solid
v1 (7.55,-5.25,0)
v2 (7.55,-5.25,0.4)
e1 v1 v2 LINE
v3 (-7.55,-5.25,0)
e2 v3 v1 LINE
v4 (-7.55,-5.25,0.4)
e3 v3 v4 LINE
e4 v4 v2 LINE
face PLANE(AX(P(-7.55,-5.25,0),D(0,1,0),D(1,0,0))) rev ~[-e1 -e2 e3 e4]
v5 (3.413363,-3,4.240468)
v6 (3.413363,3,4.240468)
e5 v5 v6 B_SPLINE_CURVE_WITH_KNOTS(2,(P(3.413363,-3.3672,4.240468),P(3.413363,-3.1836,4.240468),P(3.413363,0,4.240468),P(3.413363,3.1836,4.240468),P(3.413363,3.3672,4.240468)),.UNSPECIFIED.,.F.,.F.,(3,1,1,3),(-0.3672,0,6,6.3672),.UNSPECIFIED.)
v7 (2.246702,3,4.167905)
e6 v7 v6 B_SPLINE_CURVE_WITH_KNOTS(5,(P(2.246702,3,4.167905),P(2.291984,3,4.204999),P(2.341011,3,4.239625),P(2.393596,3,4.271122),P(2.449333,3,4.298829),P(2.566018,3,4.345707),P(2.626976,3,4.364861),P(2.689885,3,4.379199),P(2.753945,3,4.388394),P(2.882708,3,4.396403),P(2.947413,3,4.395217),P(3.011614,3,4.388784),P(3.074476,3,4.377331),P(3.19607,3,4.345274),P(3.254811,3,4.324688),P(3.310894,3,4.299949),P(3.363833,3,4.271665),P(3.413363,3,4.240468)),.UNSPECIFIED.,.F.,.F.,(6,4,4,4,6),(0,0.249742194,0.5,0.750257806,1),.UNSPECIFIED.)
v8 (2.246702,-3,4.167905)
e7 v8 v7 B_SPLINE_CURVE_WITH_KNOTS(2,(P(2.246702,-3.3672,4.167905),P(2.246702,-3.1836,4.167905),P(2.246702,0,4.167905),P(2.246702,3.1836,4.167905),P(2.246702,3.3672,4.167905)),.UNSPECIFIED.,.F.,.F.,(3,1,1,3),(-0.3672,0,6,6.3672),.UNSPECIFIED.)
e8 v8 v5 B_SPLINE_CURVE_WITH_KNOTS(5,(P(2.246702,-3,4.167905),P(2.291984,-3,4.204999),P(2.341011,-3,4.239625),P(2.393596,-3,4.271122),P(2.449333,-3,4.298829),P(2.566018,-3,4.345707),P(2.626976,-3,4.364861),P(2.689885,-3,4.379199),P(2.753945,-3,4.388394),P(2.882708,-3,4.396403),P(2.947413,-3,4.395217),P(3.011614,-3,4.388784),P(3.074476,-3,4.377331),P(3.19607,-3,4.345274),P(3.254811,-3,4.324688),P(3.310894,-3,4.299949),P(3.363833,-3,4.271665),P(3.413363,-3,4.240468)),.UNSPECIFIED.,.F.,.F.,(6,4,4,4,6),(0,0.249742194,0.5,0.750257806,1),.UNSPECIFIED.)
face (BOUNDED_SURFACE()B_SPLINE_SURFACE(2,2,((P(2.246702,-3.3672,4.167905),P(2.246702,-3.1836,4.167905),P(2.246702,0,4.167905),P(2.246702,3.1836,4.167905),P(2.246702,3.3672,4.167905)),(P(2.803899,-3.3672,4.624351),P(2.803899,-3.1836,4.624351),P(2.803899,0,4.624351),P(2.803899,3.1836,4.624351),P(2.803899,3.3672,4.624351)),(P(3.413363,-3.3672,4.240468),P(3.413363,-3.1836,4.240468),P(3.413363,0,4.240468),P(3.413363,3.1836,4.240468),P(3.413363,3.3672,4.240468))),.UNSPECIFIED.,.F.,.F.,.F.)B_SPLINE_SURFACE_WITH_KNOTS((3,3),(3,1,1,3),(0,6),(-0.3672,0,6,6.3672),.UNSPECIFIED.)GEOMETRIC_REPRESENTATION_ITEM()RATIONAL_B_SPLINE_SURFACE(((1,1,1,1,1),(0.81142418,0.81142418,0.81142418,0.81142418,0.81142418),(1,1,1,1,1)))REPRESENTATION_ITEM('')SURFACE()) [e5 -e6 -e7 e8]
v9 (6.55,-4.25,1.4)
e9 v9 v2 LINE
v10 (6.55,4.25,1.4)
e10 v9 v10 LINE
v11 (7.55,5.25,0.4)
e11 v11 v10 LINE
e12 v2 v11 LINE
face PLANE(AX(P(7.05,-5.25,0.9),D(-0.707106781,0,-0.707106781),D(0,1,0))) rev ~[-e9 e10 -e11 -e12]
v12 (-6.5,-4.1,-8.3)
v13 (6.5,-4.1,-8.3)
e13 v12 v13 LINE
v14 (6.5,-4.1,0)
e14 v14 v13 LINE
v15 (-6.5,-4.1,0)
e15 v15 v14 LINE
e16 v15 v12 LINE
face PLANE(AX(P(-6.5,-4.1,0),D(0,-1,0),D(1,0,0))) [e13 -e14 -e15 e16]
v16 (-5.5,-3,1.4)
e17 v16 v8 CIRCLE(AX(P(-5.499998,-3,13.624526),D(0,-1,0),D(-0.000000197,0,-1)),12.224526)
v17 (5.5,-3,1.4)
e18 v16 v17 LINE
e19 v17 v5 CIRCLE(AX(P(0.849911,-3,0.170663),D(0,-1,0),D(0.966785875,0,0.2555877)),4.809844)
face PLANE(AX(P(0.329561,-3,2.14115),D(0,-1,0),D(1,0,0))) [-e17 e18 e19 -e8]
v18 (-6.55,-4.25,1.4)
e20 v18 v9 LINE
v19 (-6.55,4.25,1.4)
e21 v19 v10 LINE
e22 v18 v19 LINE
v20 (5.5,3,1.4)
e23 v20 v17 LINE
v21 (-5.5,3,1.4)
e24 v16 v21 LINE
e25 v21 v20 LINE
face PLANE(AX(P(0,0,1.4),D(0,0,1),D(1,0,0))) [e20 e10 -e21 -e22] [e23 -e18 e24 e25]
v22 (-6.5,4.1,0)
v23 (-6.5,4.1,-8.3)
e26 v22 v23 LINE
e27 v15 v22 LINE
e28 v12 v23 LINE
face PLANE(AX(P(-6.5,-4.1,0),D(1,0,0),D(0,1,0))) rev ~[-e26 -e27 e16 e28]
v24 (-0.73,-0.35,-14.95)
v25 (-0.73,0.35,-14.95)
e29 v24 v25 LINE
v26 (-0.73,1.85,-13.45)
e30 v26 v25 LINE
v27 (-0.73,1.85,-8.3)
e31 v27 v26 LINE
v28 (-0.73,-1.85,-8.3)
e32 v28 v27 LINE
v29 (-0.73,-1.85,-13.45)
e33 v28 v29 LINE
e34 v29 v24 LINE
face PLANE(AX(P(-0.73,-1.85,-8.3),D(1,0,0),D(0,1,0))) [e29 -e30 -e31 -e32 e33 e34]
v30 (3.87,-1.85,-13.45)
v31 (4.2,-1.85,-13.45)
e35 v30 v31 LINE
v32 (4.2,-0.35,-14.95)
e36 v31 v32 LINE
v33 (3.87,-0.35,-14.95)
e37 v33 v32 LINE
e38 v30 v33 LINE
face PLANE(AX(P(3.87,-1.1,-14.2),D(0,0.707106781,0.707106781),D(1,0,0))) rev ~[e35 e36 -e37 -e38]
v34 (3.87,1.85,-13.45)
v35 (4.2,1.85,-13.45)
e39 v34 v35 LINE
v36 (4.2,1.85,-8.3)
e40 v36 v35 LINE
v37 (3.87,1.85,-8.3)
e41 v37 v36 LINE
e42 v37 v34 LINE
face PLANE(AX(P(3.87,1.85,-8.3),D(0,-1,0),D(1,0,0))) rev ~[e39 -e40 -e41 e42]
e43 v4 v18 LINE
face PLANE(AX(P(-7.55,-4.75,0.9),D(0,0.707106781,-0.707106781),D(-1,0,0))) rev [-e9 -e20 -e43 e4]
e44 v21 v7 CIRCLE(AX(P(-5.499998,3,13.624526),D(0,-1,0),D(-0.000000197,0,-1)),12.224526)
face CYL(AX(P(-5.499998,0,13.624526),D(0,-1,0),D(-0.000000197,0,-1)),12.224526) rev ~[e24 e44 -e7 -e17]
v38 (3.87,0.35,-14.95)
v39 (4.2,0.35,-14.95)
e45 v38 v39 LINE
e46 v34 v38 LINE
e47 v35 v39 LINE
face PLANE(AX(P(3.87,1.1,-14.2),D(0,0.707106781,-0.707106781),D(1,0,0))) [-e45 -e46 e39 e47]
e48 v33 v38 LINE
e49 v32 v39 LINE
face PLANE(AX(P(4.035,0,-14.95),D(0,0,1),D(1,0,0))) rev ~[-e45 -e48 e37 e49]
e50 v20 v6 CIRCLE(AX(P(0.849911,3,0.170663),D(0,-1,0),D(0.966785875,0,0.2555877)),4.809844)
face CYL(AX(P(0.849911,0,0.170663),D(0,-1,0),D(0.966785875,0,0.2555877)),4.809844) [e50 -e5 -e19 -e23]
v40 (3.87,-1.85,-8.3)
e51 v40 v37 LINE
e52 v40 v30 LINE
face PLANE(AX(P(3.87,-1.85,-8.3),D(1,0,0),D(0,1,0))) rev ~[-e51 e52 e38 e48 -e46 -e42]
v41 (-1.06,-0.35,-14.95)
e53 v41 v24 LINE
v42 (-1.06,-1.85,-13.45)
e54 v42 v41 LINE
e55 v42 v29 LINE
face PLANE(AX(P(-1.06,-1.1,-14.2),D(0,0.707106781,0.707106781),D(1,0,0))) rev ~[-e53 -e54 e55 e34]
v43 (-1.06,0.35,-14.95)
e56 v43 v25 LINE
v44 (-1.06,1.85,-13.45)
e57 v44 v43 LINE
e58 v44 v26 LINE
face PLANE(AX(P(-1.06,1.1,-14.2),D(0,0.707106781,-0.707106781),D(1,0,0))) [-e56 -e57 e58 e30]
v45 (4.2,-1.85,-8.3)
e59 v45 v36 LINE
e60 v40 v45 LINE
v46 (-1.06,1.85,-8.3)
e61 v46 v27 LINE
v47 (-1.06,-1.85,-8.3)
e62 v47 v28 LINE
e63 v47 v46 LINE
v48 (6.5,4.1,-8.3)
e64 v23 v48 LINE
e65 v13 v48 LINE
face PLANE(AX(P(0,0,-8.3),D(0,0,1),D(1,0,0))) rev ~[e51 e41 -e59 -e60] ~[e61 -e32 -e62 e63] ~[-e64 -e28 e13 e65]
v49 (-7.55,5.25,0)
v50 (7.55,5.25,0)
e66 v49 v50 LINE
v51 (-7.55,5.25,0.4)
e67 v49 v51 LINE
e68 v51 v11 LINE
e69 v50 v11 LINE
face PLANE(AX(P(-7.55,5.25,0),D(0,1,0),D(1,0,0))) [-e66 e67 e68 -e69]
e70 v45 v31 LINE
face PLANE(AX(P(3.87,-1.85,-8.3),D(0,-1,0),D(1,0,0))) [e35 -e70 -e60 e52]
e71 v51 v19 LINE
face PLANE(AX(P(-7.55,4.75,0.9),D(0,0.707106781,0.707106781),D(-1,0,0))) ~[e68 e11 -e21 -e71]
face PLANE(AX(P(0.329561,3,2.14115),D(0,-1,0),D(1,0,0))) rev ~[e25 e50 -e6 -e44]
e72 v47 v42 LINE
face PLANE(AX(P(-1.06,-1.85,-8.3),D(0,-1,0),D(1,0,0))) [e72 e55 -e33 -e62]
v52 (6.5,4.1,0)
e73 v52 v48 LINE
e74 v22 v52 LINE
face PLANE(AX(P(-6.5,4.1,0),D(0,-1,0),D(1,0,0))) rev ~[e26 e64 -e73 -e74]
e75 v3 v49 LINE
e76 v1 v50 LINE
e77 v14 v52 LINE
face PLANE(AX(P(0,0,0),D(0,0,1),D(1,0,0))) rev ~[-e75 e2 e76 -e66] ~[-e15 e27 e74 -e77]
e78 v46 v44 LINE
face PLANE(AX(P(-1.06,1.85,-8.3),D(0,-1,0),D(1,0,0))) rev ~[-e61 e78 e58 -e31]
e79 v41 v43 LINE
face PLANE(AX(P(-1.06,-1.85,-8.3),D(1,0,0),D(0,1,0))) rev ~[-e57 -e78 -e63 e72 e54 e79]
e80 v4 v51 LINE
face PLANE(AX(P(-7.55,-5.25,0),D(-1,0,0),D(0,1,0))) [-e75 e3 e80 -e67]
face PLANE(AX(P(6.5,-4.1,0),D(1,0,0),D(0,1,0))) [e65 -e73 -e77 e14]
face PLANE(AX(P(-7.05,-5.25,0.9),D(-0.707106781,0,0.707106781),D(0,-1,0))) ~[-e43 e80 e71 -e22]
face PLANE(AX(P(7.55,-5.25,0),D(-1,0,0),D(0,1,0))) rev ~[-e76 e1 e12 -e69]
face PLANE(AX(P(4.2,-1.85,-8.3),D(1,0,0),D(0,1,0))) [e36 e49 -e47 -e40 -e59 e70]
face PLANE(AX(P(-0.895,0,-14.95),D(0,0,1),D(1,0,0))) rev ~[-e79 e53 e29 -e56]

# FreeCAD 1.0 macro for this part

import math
import FreeCAD as App
import Part
import Sketcher
Q = App.Units.Quantity


def edges_at(feature, points):
    """Names of the edges that pass closest to the given points."""
    edges = feature.Shape.Edges
    near = lambda p: min(range(len(edges)), key=lambda i: edges[i].distToShape(Part.Vertex(*p))[0])
    return sorted({f"Edge{near(p) + 1}" for p in points})


def add_polygon(sketch, points):
    """Adds a closed chain of lines whose ends are joined by coincident constraints."""
    first, n = sketch.GeometryCount, len(points)
    for a, b in zip(points, points[1:] + points[:1]):
        sketch.addGeometry(Part.LineSegment(App.Vector(*a, 0), App.Vector(*b, 0)), False)
    for i in range(n):
        sketch.addConstraint(Sketcher.Constraint("Coincident", first + i, 2, first + (i + 1) % n, 1))

doc = App.newDocument("Part")
body = doc.addObject("PartDesign::Body", "Body")

# Sketch on XY plane
sketch1 = body.newObject("Sketcher::SketchObject", "Sketch")
sketch1.AttachmentSupport = (doc.getObject("XY_Plane"), [""])
sketch1.MapMode = "FlatFace"
add_polygon(sketch1, [(-6, 4), (-6, -4), (6, -4), (6, 4)])  # lines 0-3
sketch1.addConstraint(Sketcher.Constraint("Vertical", 0))
sketch1.addConstraint(Sketcher.Constraint("Horizontal", 1))
sketch1.addConstraint(Sketcher.Constraint("Vertical", 2))
sketch1.addConstraint(Sketcher.Constraint("Horizontal", 3))
sketch1.addConstraint(Sketcher.Constraint("Symmetric", 0, 2, 2, 2, -1, 1))
sketch1.addConstraint(Sketcher.Constraint("DistanceX", 1, 1, 1, 2, Q("13 mm")))
sketch1.addConstraint(Sketcher.Constraint("DistanceY", 0, 2, 0, 1, Q("8.2 mm")))
pad1 = body.newObject("PartDesign::Pad", "Pad")
pad1.Profile = sketch1
pad1.Length = 8.3
pad1.Reversed = True

# Sketch on XY plane
sketch2 = body.newObject("Sketcher::SketchObject", "Sketch001")
sketch2.AttachmentSupport = (doc.getObject("XY_Plane"), [""])
sketch2.MapMode = "FlatFace"
add_polygon(sketch2, [(-8, 5), (-8, -5), (8, -5), (8, 5)])  # lines 0-3
sketch2.addConstraint(Sketcher.Constraint("Vertical", 0))
sketch2.addConstraint(Sketcher.Constraint("Horizontal", 1))
sketch2.addConstraint(Sketcher.Constraint("Vertical", 2))
sketch2.addConstraint(Sketcher.Constraint("Horizontal", 3))
sketch2.addConstraint(Sketcher.Constraint("Symmetric", 0, 2, 2, 2, -1, 1))
sketch2.addConstraint(Sketcher.Constraint("DistanceX", 1, 1, 1, 2, Q("15.1 mm")))
sketch2.addConstraint(Sketcher.Constraint("DistanceY", 0, 2, 0, 1, Q("10.5 mm")))
pad2 = body.newObject("PartDesign::Pad", "Pad001")
pad2.Profile = sketch2
pad2.Length = 1.4
doc.recompute()

chamfer = body.newObject("PartDesign::Chamfer", "Chamfer")
chamfer.Base = (pad2, edges_at(pad2, [
    (-7.55, 0, 1.4),
    (0, 5.25, 1.4),
    (7.55, 0, 1.4),
    (0, -5.25, 1.4),
]))
chamfer.Size = 1

# Sketch on XZ plane
sketch3 = body.newObject("Sketcher::SketchObject", "Sketch002")
sketch3.AttachmentSupport = (doc.getObject("XZ_Plane"), [""])
sketch3.MapMode = "FlatFace"
sketch3.addGeometry(Part.LineSegment(App.Vector(-5.5, 1.4, 0), App.Vector(5.5, 1.4, 0)), False)
sketch3.addGeometry(Part.ArcOfCircle(Part.Circle(App.Vector(0.8, 0.2, 0), App.Vector(0, 0, 1), 4.8), math.radians(15), math.radians(67)), False)
sketch3.addGeometry(Part.ArcOfCircle(Part.Circle(App.Vector(-5.5, 13.6, 0), App.Vector(0, 0, 1), 12.2), math.radians(-90), math.radians(-48)), False)
sketch3.addConstraint(Sketcher.Constraint("Coincident", 0, 2, 1, 1))
sketch3.addConstraint(Sketcher.Constraint("Coincident", 1, 2, 2, 2))
sketch3.addConstraint(Sketcher.Constraint("Tangent", 2, 1, 0, 1))
sketch3.addConstraint(Sketcher.Constraint("Horizontal", 0))
sketch3.addConstraint(Sketcher.Constraint("DistanceX", 0, 1, 0, 2, Q("11 mm")))
sketch3.addConstraint(Sketcher.Constraint("DistanceX", -1, 1, 0, 2, Q("5.5 mm")))
sketch3.addConstraint(Sketcher.Constraint("DistanceY", -1, 1, 0, 2, Q("1.4 mm")))
sketch3.addConstraint(Sketcher.Constraint("Radius", 1, Q("4.809844 mm")))
sketch3.addConstraint(Sketcher.Constraint("Radius", 2, Q("12.224526 mm")))
sketch3.addConstraint(Sketcher.Constraint("DistanceX", -1, 1, 1, 3, Q("0.849911 mm")))
pad3 = body.newObject("PartDesign::Pad", "Pad002")
pad3.Profile = sketch3
pad3.Length = 6
pad3.Midplane = True
doc.recompute()

fillet = body.newObject("PartDesign::Fillet", "Fillet")
fillet.Base = (pad3, edges_at(pad3, [(2.739, 0, 4.594)]))
fillet.Radius = 1

# Sketch on XY plane
sketch4 = body.newObject("Sketcher::SketchObject", "Sketch003")
sketch4.AttachmentSupport = (doc.getObject("XY_Plane"), [""])
sketch4.MapMode = "FlatFace"
sketch4.AttachmentOffset = App.Placement(App.Vector(0, 0, -8.3), App.Rotation())
add_polygon(sketch4, [(3.87, 1.85), (3.87, -1.85), (4.2, -1.85), (4.2, 1.85)])  # lines 0-3
add_polygon(sketch4, [(-1.06, 1.85), (-1.06, -1.85), (-0.73, -1.85), (-0.73, 1.85)])  # lines 4-7
sketch4.addConstraint(Sketcher.Constraint("Vertical", 0))
sketch4.addConstraint(Sketcher.Constraint("Horizontal", 1))
sketch4.addConstraint(Sketcher.Constraint("Vertical", 2))
sketch4.addConstraint(Sketcher.Constraint("Horizontal", 3))
sketch4.addConstraint(Sketcher.Constraint("Vertical", 4))
sketch4.addConstraint(Sketcher.Constraint("Horizontal", 5))
sketch4.addConstraint(Sketcher.Constraint("Vertical", 6))
sketch4.addConstraint(Sketcher.Constraint("Horizontal", 7))
sketch4.addConstraint(Sketcher.Constraint("Horizontal", 1, 2, 4, 2))
sketch4.addConstraint(Sketcher.Constraint("Horizontal", 3, 2, 6, 2))
sketch4.addConstraint(Sketcher.Constraint("Equal", 3, 5))
sketch4.addConstraint(Sketcher.Constraint("DistanceY", 0, 2, 0, 1, Q("3.7 mm")))
sketch4.addConstraint(Sketcher.Constraint("DistanceX", 1, 1, 1, 2, Q("0.33 mm")))
sketch4.addConstraint(Sketcher.Constraint("DistanceX", -1, 1, 1, 2, Q("4.2 mm")))
sketch4.addConstraint(Sketcher.Constraint("DistanceX", 5, 2, 0, 2, Q("4.6 mm")))
sketch4.addConstraint(Sketcher.Constraint("DistanceY", 0, 2, -1, 1, Q("1.85 mm")))
pad4 = body.newObject("PartDesign::Pad", "Pad003")
pad4.Profile = sketch4
pad4.Length = 6.65
pad4.Reversed = True
doc.recompute()

chamfer2 = body.newObject("PartDesign::Chamfer", "Chamfer001")
chamfer2.Base = (pad4, edges_at(pad4, [
    (4.035, 1.85, -14.95),
    (4.035, -1.85, -14.95),
    (-0.895, 1.85, -14.95),
    (-0.895, -1.85, -14.95),
]))
chamfer2.Size = 1.5

doc.recompute()
